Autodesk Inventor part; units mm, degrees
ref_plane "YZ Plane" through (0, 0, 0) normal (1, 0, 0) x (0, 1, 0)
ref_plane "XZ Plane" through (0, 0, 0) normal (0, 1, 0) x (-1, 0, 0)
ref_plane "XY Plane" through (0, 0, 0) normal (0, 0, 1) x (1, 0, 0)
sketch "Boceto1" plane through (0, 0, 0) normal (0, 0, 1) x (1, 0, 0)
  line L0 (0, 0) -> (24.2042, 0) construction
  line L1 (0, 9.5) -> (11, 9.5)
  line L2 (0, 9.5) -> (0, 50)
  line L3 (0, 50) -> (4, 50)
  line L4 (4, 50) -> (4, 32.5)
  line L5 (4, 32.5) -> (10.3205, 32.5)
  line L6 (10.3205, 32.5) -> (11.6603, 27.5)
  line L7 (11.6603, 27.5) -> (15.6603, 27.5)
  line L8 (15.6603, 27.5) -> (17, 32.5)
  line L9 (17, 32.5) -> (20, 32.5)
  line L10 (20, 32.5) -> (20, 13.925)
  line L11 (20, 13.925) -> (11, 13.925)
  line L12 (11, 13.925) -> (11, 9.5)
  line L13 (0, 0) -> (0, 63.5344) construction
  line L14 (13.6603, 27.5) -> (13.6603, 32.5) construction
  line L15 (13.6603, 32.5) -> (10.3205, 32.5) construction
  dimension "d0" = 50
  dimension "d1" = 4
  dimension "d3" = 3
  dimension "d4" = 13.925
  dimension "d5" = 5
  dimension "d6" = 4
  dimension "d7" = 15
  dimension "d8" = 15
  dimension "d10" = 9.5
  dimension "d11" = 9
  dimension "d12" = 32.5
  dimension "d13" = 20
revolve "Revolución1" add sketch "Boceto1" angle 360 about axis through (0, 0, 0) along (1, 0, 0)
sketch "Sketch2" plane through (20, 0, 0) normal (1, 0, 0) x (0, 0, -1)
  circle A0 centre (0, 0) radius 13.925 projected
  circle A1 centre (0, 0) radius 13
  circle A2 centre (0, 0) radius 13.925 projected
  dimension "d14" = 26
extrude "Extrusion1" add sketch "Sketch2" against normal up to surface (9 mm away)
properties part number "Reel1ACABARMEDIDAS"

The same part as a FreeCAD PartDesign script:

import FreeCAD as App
import Part
import Sketcher
from FreeCAD import Vector
Q = App.Units.Quantity


def add_polygon(sketch, points):
    """Adds a closed chain of lines whose ends are joined by coincident constraints."""
    first, n = sketch.GeometryCount, len(points)
    for a, b in zip(points, points[1:] + points[:1]):
        sketch.addGeometry(Part.LineSegment(App.Vector(*a, 0), App.Vector(*b, 0)), False)
    for i in range(n):
        sketch.addConstraint(Sketcher.Constraint("Coincident", first + i, 2, first + (i + 1) % n, 1))

doc = App.newDocument("Part")
body = doc.addObject("PartDesign::Body", "Body")

sketch1 = body.newObject("Sketcher::SketchObject", "Sketch")
sketch1.AttachmentSupport = (doc.getObject("XY_Plane"), [""])
sketch1.MapMode = "FlatFace"
add_polygon(sketch1, [(0, 50), (0, 9.5), (11, 9.5), (11, 13.9), (20, 13.9), (20, 32.5), (17, 32.5), (15.7, 27.5), (11.7, 27.5), (10.3, 32.5), (4, 32.5), (4, 50)])
sketch1.addConstraint(Sketcher.Constraint("Vertical", 0))
sketch1.addConstraint(Sketcher.Constraint("Horizontal", 1))
sketch1.addConstraint(Sketcher.Constraint("Vertical", 2))
sketch1.addConstraint(Sketcher.Constraint("Horizontal", 3))
sketch1.addConstraint(Sketcher.Constraint("Vertical", 4))
sketch1.addConstraint(Sketcher.Constraint("Horizontal", 5))
sketch1.addConstraint(Sketcher.Constraint("Horizontal", 7))
sketch1.addConstraint(Sketcher.Constraint("Horizontal", 9))
sketch1.addConstraint(Sketcher.Constraint("Vertical", 10))
sketch1.addConstraint(Sketcher.Constraint("Horizontal", 11))
sketch1.addConstraint(Sketcher.Constraint("PointOnObject", 0, 2, -2))
sketch1.addConstraint(Sketcher.Constraint("Horizontal", 5, 2, 8, 2))
sketch1.addConstraint(Sketcher.Constraint("Equal", 7, 11))
sketch1.addConstraint(Sketcher.Constraint("Equal", 6, 8))
sketch1.addConstraint(Sketcher.Constraint("DistanceX", 3, 1, 3, 2, Q("9 mm")))
sketch1.addConstraint(Sketcher.Constraint("DistanceX", 5, 2, 5, 1, Q("3 mm")))
sketch1.addConstraint(Sketcher.Constraint("DistanceX", 7, 2, 7, 1, Q("4 mm")))
sketch1.addConstraint(Sketcher.Constraint("DistanceX", -1, 1, 3, 2, Q("20 mm")))
sketch1.addConstraint(Sketcher.Constraint("DistanceY", -1, 1, 10, 2, Q("50 mm")))
sketch1.addConstraint(Sketcher.Constraint("DistanceY", 6, 2, 5, 2, Q("5 mm")))
sketch1.addConstraint(Sketcher.Constraint("DistanceY", -1, 1, 0, 2, Q("9.5 mm")))
sketch1.addConstraint(Sketcher.Constraint("DistanceY", -1, 1, 4, 2, Q("32.5 mm")))
sketch1.addConstraint(Sketcher.Constraint("Angle", 6, Q("-104.9995 deg")))
sketch1.addConstraint(Sketcher.Constraint("DistanceY", -1, 1, 2, 2, Q("13.925 mm")))
revolution = body.newObject("PartDesign::Revolution", "Revolution")
revolution.Profile = sketch1
revolution.ReferenceAxis = (sketch1, ["H_Axis"])
revolution.Angle = 360

sketch2 = body.newObject("Sketcher::SketchObject", "Sketch001")
sketch2.AttachmentSupport = (doc.getObject("YZ_Plane"), [""])
sketch2.MapMode = "FlatFace"
sketch2.AttachmentOffset = App.Placement(Vector(0, 0, 20), App.Rotation())
sketch2.addGeometry(Part.Circle(Vector(0, 0, 0), Vector(0, 0, 1), 14), False)
sketch2.addGeometry(Part.Circle(Vector(0, 0, 0), Vector(0, 0, 1), 13), False)
sketch2.addConstraint(Sketcher.Constraint("Coincident", 0, 3, -1, 1))
sketch2.addConstraint(Sketcher.Constraint("Coincident", 1, 3, -1, 1))
sketch2.addConstraint(Sketcher.Constraint("Diameter", 1, Q("26 mm")))
sketch2.addConstraint(Sketcher.Constraint("Diameter", 0, Q("27.85 mm")))
pad1 = body.newObject("PartDesign::Pad", "Pad")
pad1.Profile = sketch2
pad1.Length = 9
pad1.Reversed = True

doc.recompute()
